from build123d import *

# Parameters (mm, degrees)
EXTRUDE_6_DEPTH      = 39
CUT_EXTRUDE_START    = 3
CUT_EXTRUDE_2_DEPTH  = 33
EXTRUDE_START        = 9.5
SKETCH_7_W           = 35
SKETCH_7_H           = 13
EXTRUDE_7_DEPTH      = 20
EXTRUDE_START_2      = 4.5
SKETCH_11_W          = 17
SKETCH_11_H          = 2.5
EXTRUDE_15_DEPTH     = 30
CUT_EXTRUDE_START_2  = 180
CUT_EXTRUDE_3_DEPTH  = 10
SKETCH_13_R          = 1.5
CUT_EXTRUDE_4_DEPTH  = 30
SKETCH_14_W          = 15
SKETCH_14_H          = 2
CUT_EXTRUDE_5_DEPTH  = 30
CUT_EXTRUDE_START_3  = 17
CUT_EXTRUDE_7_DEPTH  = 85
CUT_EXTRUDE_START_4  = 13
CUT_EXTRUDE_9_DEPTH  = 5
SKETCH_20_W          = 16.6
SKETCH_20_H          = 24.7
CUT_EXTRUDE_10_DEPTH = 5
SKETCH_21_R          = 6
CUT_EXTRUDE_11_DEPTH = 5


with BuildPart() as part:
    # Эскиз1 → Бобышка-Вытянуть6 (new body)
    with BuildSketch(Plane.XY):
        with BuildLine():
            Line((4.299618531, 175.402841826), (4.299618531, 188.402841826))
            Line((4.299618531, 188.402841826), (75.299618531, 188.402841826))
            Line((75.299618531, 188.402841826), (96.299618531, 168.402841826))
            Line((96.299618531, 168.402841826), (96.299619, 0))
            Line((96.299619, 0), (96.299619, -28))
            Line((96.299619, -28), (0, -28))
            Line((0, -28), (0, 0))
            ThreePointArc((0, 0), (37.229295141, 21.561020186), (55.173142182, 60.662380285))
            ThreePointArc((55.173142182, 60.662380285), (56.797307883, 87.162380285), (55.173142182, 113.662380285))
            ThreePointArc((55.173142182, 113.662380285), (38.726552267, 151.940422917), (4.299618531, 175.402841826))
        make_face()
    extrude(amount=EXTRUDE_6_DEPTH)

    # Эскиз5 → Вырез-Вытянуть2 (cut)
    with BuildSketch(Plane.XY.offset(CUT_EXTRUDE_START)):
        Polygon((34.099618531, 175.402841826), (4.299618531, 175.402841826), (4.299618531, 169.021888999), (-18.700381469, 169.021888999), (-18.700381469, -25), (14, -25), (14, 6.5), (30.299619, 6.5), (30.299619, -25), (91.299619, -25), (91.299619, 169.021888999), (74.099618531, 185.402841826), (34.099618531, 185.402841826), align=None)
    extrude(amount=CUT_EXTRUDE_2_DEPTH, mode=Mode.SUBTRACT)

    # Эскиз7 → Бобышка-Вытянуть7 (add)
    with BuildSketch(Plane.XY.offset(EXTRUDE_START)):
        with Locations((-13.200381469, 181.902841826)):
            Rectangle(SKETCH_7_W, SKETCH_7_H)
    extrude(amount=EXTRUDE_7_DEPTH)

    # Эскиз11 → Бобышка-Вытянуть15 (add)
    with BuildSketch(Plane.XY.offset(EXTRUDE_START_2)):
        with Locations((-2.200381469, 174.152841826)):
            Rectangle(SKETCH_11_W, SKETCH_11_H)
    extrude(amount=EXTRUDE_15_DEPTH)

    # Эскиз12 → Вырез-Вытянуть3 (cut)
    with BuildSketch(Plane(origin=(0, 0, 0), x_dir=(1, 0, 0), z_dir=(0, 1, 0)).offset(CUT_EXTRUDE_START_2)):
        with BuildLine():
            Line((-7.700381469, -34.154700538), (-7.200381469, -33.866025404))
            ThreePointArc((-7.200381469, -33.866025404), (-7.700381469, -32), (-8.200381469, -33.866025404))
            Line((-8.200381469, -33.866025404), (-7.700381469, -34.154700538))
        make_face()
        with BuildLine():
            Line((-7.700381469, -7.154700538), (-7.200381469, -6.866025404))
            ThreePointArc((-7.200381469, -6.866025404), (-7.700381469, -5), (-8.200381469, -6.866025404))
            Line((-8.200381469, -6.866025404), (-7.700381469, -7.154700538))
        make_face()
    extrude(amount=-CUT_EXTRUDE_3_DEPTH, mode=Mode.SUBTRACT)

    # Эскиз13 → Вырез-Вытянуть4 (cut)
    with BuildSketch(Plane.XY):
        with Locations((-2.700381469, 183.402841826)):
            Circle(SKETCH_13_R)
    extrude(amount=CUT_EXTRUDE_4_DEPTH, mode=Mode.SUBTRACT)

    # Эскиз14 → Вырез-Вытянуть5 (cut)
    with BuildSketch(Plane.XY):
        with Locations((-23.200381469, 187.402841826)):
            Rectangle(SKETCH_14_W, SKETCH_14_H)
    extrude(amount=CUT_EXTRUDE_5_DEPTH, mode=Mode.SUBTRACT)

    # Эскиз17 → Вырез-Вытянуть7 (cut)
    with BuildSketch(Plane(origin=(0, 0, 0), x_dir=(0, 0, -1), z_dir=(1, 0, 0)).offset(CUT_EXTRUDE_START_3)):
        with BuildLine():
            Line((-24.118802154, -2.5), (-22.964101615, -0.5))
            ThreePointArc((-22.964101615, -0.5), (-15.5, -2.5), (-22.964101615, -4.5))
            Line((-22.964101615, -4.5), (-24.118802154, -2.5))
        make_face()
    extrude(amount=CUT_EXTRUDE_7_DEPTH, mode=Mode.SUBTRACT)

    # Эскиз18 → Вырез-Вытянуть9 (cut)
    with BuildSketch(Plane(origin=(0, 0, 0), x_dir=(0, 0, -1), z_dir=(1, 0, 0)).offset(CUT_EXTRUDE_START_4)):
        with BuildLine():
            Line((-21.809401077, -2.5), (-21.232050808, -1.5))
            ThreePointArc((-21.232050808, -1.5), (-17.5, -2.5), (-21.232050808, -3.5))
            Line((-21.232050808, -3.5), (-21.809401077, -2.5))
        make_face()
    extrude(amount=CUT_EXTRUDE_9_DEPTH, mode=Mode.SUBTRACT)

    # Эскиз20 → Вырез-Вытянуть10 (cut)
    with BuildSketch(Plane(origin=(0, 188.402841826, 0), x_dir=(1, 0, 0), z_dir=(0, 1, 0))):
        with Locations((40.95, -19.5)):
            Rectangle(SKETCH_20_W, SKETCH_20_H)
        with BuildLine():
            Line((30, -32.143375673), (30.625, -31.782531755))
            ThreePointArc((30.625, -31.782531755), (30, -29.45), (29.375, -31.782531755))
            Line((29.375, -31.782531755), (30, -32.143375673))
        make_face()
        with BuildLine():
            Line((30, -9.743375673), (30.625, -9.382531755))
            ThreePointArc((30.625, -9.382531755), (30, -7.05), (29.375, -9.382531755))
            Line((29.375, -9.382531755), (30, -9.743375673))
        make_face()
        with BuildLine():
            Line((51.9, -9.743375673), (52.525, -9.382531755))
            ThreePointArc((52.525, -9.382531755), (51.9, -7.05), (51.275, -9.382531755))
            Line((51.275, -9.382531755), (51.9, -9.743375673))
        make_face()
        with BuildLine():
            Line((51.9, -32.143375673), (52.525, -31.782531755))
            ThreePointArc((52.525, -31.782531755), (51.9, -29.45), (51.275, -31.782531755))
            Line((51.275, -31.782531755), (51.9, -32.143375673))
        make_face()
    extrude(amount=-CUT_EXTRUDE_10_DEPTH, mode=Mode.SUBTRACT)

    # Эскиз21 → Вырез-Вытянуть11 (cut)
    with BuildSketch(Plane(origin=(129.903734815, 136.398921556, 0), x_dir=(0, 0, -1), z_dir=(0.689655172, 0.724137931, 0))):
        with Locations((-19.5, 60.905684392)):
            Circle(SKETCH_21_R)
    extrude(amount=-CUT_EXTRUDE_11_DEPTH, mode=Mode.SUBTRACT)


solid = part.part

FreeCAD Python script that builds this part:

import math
import FreeCAD as App
import Part
import Sketcher
from FreeCAD import Vector
Q = App.Units.Quantity

doc = App.newDocument("Part")
body = doc.addObject("PartDesign::Body", "Body")

sketch1 = body.newObject("Sketcher::SketchObject", "Sketch")
sketch1.AttachmentSupport = (doc.getObject("XY_Plane"), [""])
sketch1.MapMode = "FlatFace"
sketch1.addGeometry([
    Part.LineSegment(Vector(4, 188, 0), Vector(4, 175, 0)),
    Part.ArcOfCircle(Part.Circle(Vector(-19, 105, 0), Vector(0, 0, 1), 75), math.radians(7), math.radians(72)),
    Part.ArcOfCircle(Part.Circle(Vector(-160, 87, 0), Vector(0, 0, 1), 217), math.radians(-7.01), math.radians(7.01)),
    Part.ArcOfCircle(Part.Circle(Vector(-15, 69, 0), Vector(0, 0, 1), 71), math.radians(-78), math.radians(-7)),
    Part.LineSegment(Vector(0, 0, 0), Vector(0, -28, 0)),
    Part.LineSegment(Vector(0, -28, 0), Vector(96, -28, 0)),
    Part.LineSegment(Vector(96, -28, 0), Vector(96, 0, 0)),
    Part.LineSegment(Vector(96, 0, 0), Vector(96, 168, 0)),
    Part.LineSegment(Vector(96, 168, 0), Vector(75, 188, 0)),
    Part.LineSegment(Vector(75, 188, 0), Vector(4, 188, 0)),
], False)
sketch1.addConstraint([
    Sketcher.Constraint("Coincident", 0, 2, 1, 2),
    Sketcher.Constraint("Tangent", 1, 1, 2, 2),
    Sketcher.Constraint("Tangent", 2, 1, 3, 2),
    Sketcher.Constraint("Coincident", 3, 1, 4, 1),
    Sketcher.Constraint("Coincident", 4, 2, 5, 1),
    Sketcher.Constraint("Coincident", 5, 2, 6, 1),
    Sketcher.Constraint("Coincident", 6, 2, 7, 1),
    Sketcher.Constraint("Coincident", 7, 2, 8, 1),
    Sketcher.Constraint("Coincident", 8, 2, 9, 1),
    Sketcher.Constraint("Coincident", 9, 2, 0, 1),
    Sketcher.Constraint("Vertical", 0),
    Sketcher.Constraint("Vertical", 4),
    Sketcher.Constraint("Horizontal", 5),
    Sketcher.Constraint("Vertical", 6),
    Sketcher.Constraint("Vertical", 7),
    Sketcher.Constraint("Horizontal", 9),
    Sketcher.Constraint("Coincident", 3, 1, -1, 1),
    Sketcher.Constraint("PointOnObject", 6, 2, -1),
    Sketcher.Constraint("Vertical", 1, 1, 2, 1),
    Sketcher.Constraint("Radius", 2, Q("217 mm")),
    Sketcher.Constraint("Radius", 3, Q("71 mm")),
    Sketcher.Constraint("Radius", 1, Q("74.5 mm")),
    Sketcher.Constraint("DistanceX", 9, 2, 9, 1, Q("71 mm")),
    Sketcher.Constraint("DistanceY", 0, 2, 0, 1, Q("13 mm")),
    Sketcher.Constraint("DistanceY", 4, 2, 4, 1, Q("28 mm")),
    Sketcher.Constraint("Distance", 8, Q("29 mm")),
    Sketcher.Constraint("DistanceY", 2, 1, 1, 1, Q("53 mm")),
    Sketcher.Constraint("DistanceX", 0, 2, 7, 2, Q("92 mm")),
    Sketcher.Constraint("DistanceX", 5, 1, 5, 2, Q("96.299619 mm")),
    Sketcher.Constraint("DistanceY", 7, 1, 7, 2, Q("168.402842 mm")),
])
pad1 = body.newObject("PartDesign::Pad", "Pad")
pad1.Profile = sketch1
pad1.Length = 39

sketch2 = body.newObject("Sketcher::SketchObject", "Sketch001")
sketch2.AttachmentSupport = (doc.getObject("XY_Plane"), [""])
sketch2.MapMode = "FlatFace"
sketch2.AttachmentOffset = App.Placement(Vector(0, 0, 3), App.Rotation())
sketch2.addGeometry([
    Part.LineSegment(Vector(34, 175, 0), Vector(4, 175, 0)),
    Part.LineSegment(Vector(4, 175, 0), Vector(4, 169, 0)),
    Part.LineSegment(Vector(4, 169, 0), Vector(-19, 169, 0)),
    Part.LineSegment(Vector(-19, 169, 0), Vector(-19, -25, 0)),
    Part.LineSegment(Vector(-19, -25, 0), Vector(14, -25, 0)),
    Part.LineSegment(Vector(14, -25, 0), Vector(14, 6, 0)),
    Part.LineSegment(Vector(14, 6, 0), Vector(30, 6, 0)),
    Part.LineSegment(Vector(30, 6, 0), Vector(30, -25, 0)),
    Part.LineSegment(Vector(30, -25, 0), Vector(91, -25, 0)),
    Part.LineSegment(Vector(91, -25, 0), Vector(91, 169, 0)),
    Part.LineSegment(Vector(91, 169, 0), Vector(74, 185, 0)),
    Part.LineSegment(Vector(74, 185, 0), Vector(34, 185, 0)),
    Part.LineSegment(Vector(34, 185, 0), Vector(34, 175, 0)),
], False)
sketch2.addConstraint([
    Sketcher.Constraint("Coincident", 0, 2, 1, 1),
    Sketcher.Constraint("Coincident", 1, 2, 2, 1),
    Sketcher.Constraint("Coincident", 2, 2, 3, 1),
    Sketcher.Constraint("Coincident", 3, 2, 4, 1),
    Sketcher.Constraint("Coincident", 4, 2, 5, 1),
    Sketcher.Constraint("Coincident", 5, 2, 6, 1),
    Sketcher.Constraint("Coincident", 6, 2, 7, 1),
    Sketcher.Constraint("Coincident", 7, 2, 8, 1),
    Sketcher.Constraint("Coincident", 8, 2, 9, 1),
    Sketcher.Constraint("Coincident", 9, 2, 10, 1),
    Sketcher.Constraint("Coincident", 10, 2, 11, 1),
    Sketcher.Constraint("Coincident", 11, 2, 12, 1),
    Sketcher.Constraint("Coincident", 12, 2, 0, 1),
    Sketcher.Constraint("Horizontal", 0),
    Sketcher.Constraint("Vertical", 1),
    Sketcher.Constraint("Horizontal", 2),
    Sketcher.Constraint("Vertical", 3),
    Sketcher.Constraint("Horizontal", 4),
    Sketcher.Constraint("Vertical", 5),
    Sketcher.Constraint("Horizontal", 6),
    Sketcher.Constraint("Vertical", 7),
    Sketcher.Constraint("Horizontal", 8),
    Sketcher.Constraint("Vertical", 9),
    Sketcher.Constraint("Horizontal", 11),
    Sketcher.Constraint("Vertical", 12),
    Sketcher.Constraint("Horizontal", 4, 2, 7, 2),
    Sketcher.Constraint("Horizontal", 2, 2, 9, 2),
    Sketcher.Constraint("DistanceX", 2, 2, 2, 1, Q("23 mm")),
    Sketcher.Constraint("DistanceX", 8, 1, 8, 2, Q("61 mm")),
    Sketcher.Constraint("DistanceX", 11, 2, 11, 1, Q("40 mm")),
    Sketcher.Constraint("DistanceY", 12, 2, 12, 1, Q("10 mm")),
    Sketcher.Constraint("DistanceX", 0, 2, 0, 1, Q("29.8 mm")),
    Sketcher.Constraint("DistanceY", 5, 1, 5, 2, Q("31.5 mm")),
    Sketcher.Constraint("DistanceY", 3, 2, -1, 1, Q("25 mm")),
    Sketcher.Constraint("DistanceX", -1, 1, 4, 2, Q("14 mm")),
    Sketcher.Constraint("DistanceX", 3, 2, 6, 2, Q("49 mm")),
    Sketcher.Constraint("DistanceX", 4, 1, 4, 2, Q("32.700381 mm")),
    Sketcher.Constraint("DistanceY", 3, 2, 3, 1, Q("194.021889 mm")),
    Sketcher.Constraint("Distance", 10, Q("23.752382 mm")),
])
pocket1 = body.newObject("PartDesign::Pocket", "Pocket")
pocket1.Profile = sketch2
pocket1.Length = 33
pocket1.Reversed = True

sketch3 = body.newObject("Sketcher::SketchObject", "Sketch002")
sketch3.AttachmentSupport = (doc.getObject("XY_Plane"), [""])
sketch3.MapMode = "FlatFace"
sketch3.AttachmentOffset = App.Placement(Vector(0, 0, 9.5), App.Rotation())
sketch3.addGeometry([
    Part.LineSegment(Vector(-31, 188, 0), Vector(-31, 175, 0)),
    Part.LineSegment(Vector(-31, 175, 0), Vector(4, 175, 0)),
    Part.LineSegment(Vector(4, 175, 0), Vector(4, 188, 0)),
    Part.LineSegment(Vector(4, 188, 0), Vector(-31, 188, 0)),
], False)
sketch3.addConstraint([
    Sketcher.Constraint("Coincident", 0, 2, 1, 1),
    Sketcher.Constraint("Coincident", 1, 2, 2, 1),
    Sketcher.Constraint("Coincident", 2, 2, 3, 1),
    Sketcher.Constraint("Coincident", 3, 2, 0, 1),
    Sketcher.Constraint("Vertical", 0),
    Sketcher.Constraint("Horizontal", 1),
    Sketcher.Constraint("Vertical", 2),
    Sketcher.Constraint("Horizontal", 3),
    Sketcher.Constraint("DistanceX", 1, 1, 1, 2, Q("35 mm")),
    Sketcher.Constraint("DistanceY", 0, 2, 0, 1, Q("13 mm")),
    Sketcher.Constraint("DistanceX", 0, 2, -1, 1, Q("30.700381 mm")),
    Sketcher.Constraint("DistanceY", -1, 1, 0, 2, Q("175.402842 mm")),
])
pad2 = body.newObject("PartDesign::Pad", "Pad001")
pad2.Profile = sketch3
pad2.Length = 20

sketch4 = body.newObject("Sketcher::SketchObject", "Sketch003")
sketch4.AttachmentSupport = (doc.getObject("XY_Plane"), [""])
sketch4.MapMode = "FlatFace"
sketch4.AttachmentOffset = App.Placement(Vector(0, 0, 4.5), App.Rotation())
sketch4.addGeometry([
    Part.LineSegment(Vector(-10.7, 175.4, 0), Vector(-10.7, 172.9, 0)),
    Part.LineSegment(Vector(-10.7, 172.9, 0), Vector(6.3, 172.9, 0)),
    Part.LineSegment(Vector(6.3, 172.9, 0), Vector(6.3, 175.4, 0)),
    Part.LineSegment(Vector(6.3, 175.4, 0), Vector(-10.7, 175.4, 0)),
], False)
sketch4.addConstraint([
    Sketcher.Constraint("Coincident", 0, 2, 1, 1),
    Sketcher.Constraint("Coincident", 1, 2, 2, 1),
    Sketcher.Constraint("Coincident", 2, 2, 3, 1),
    Sketcher.Constraint("Coincident", 3, 2, 0, 1),
    Sketcher.Constraint("Vertical", 0),
    Sketcher.Constraint("Horizontal", 1),
    Sketcher.Constraint("Vertical", 2),
    Sketcher.Constraint("Horizontal", 3),
    Sketcher.Constraint("DistanceX", 1, 1, 1, 2, Q("17 mm")),
    Sketcher.Constraint("DistanceY", 0, 2, 0, 1, Q("2.5 mm")),
    Sketcher.Constraint("DistanceX", 0, 2, -1, 1, Q("10.700381 mm")),
    Sketcher.Constraint("DistanceY", -1, 1, 0, 2, Q("172.902842 mm")),
])
pad3 = body.newObject("PartDesign::Pad", "Pad002")
pad3.Profile = sketch4
pad3.Length = 30

sketch5 = body.newObject("Sketcher::SketchObject", "Sketch004")
sketch5.AttachmentSupport = (doc.getObject("XZ_Plane"), [""])
sketch5.MapMode = "FlatFace"
sketch5.AttachmentOffset = App.Placement(Vector(0, 0, -180), App.Rotation())
sketch5.addGeometry([
    Part.LineSegment(Vector(-7.7, 34.2, 0), Vector(-7.2, 33.9, 0)),
    Part.ArcOfCircle(Part.Circle(Vector(-7.7, 33, 0), Vector(0, 0, 1), 1), math.radians(120), math.radians(420)),
    Part.LineSegment(Vector(-8.2, 33.9, 0), Vector(-7.7, 34.2, 0)),
    Part.LineSegment(Vector(-7.7, 7.2, 0), Vector(-7.2, 6.9, 0)),
    Part.ArcOfCircle(Part.Circle(Vector(-7.7, 6, 0), Vector(0, 0, 1), 1), math.radians(120), math.radians(420)),
    Part.LineSegment(Vector(-8.2, 6.9, 0), Vector(-7.7, 7.2, 0)),
], False)
sketch5.addConstraint([
    Sketcher.Constraint("Tangent", 0, 2, 1, 2),
    Sketcher.Constraint("Tangent", 1, 1, 2, 1),
    Sketcher.Constraint("Coincident", 2, 2, 0, 1),
    Sketcher.Constraint("Tangent", 3, 2, 4, 2),
    Sketcher.Constraint("Tangent", 4, 1, 5, 1),
    Sketcher.Constraint("Coincident", 5, 2, 3, 1),
    Sketcher.Constraint("Equal", 1, 4),
    Sketcher.Constraint("Parallel", 0, 3),
    Sketcher.Constraint("Parallel", 2, 5),
    Sketcher.Constraint("Horizontal", 0, 2, 1, 1),
    Sketcher.Constraint("Vertical", 1, 3, 4, 3),
    Sketcher.Constraint("Radius", 1, Q("1 mm")),
    Sketcher.Constraint("Angle", 0, Q("-30 deg")),
    Sketcher.Constraint("DistanceY", -1, 1, 1, 3, Q("33 mm")),
    Sketcher.Constraint("DistanceY", -1, 1, 4, 3, Q("6 mm")),
    Sketcher.Constraint("DistanceX", 1, 3, -1, 1, Q("7.700381 mm")),
])
pocket2 = body.newObject("PartDesign::Pocket", "Pocket001")
pocket2.Profile = sketch5
pocket2.Length = 10
pocket2.Reversed = True

sketch6 = body.newObject("Sketcher::SketchObject", "Sketch005")
sketch6.AttachmentSupport = (doc.getObject("XY_Plane"), [""])
sketch6.MapMode = "FlatFace"
sketch6.addGeometry(Part.Circle(Vector(-2.7, 183.4, 0), Vector(0, 0, 1), 1.5), False)
sketch6.addConstraint([
    Sketcher.Constraint("Diameter", 0, Q("3 mm")),
    Sketcher.Constraint("DistanceX", 0, 3, -1, 1, Q("2.700381 mm")),
    Sketcher.Constraint("DistanceY", -1, 1, 0, 3, Q("183.402842 mm")),
])
pocket3 = body.newObject("PartDesign::Pocket", "Pocket002")
pocket3.Profile = sketch6
pocket3.Length = 30
pocket3.Reversed = True

sketch7 = body.newObject("Sketcher::SketchObject", "Sketch006")
sketch7.AttachmentSupport = (doc.getObject("XY_Plane"), [""])
sketch7.MapMode = "FlatFace"
sketch7.addGeometry([
    Part.LineSegment(Vector(-30.7, 188.4, 0), Vector(-30.7, 186.4, 0)),
    Part.LineSegment(Vector(-30.7, 186.4, 0), Vector(-15.7, 186.4, 0)),
    Part.LineSegment(Vector(-15.7, 186.4, 0), Vector(-15.7, 188.4, 0)),
    Part.LineSegment(Vector(-15.7, 188.4, 0), Vector(-30.7, 188.4, 0)),
], False)
sketch7.addConstraint([
    Sketcher.Constraint("Coincident", 0, 2, 1, 1),
    Sketcher.Constraint("Coincident", 1, 2, 2, 1),
    Sketcher.Constraint("Coincident", 2, 2, 3, 1),
    Sketcher.Constraint("Coincident", 3, 2, 0, 1),
    Sketcher.Constraint("Vertical", 0),
    Sketcher.Constraint("Horizontal", 1),
    Sketcher.Constraint("Vertical", 2),
    Sketcher.Constraint("Horizontal", 3),
    Sketcher.Constraint("DistanceX", 1, 1, 1, 2, Q("15 mm")),
    Sketcher.Constraint("DistanceY", 0, 2, 0, 1, Q("2 mm")),
    Sketcher.Constraint("DistanceX", 0, 2, -1, 1, Q("30.700381 mm")),
    Sketcher.Constraint("DistanceY", -1, 1, 0, 2, Q("186.402842 mm")),
])
pocket4 = body.newObject("PartDesign::Pocket", "Pocket003")
pocket4.Profile = sketch7
pocket4.Length = 30
pocket4.Reversed = True

sketch8 = body.newObject("Sketcher::SketchObject", "Sketch007")
sketch8.AttachmentSupport = (doc.getObject("YZ_Plane"), [""])
sketch8.MapMode = "FlatFace"
sketch8.AttachmentOffset = App.Placement(Vector(0, 0, 17), App.Rotation())
sketch8.addGeometry([
    Part.LineSegment(Vector(-0.5, 23, 0), Vector(-2.5, 24.1, 0)),
    Part.LineSegment(Vector(-2.5, 24.1, 0), Vector(-4.5, 23, 0)),
    Part.ArcOfCircle(Part.Circle(Vector(-2.5, 19.5, 0), Vector(0, 0, 1), 4), math.radians(120), math.radians(420)),
], False)
sketch8.addConstraint([
    Sketcher.Constraint("Coincident", 0, 2, 1, 1),
    Sketcher.Constraint("Tangent", 1, 2, 2, 1),
    Sketcher.Constraint("Tangent", 2, 2, 0, 1),
    Sketcher.Constraint("Horizontal", 1, 2, 2, 2),
    Sketcher.Constraint("Radius", 2, Q("4 mm")),
    Sketcher.Constraint("Angle", 0, Q("150 deg")),
    Sketcher.Constraint("DistanceX", 2, 3, -1, 1, Q("2.5 mm")),
    Sketcher.Constraint("DistanceY", -1, 1, 2, 3, Q("19.5 mm")),
])
pocket5 = body.newObject("PartDesign::Pocket", "Pocket004")
pocket5.Profile = sketch8
pocket5.Length = 85
pocket5.Reversed = True

sketch9 = body.newObject("Sketcher::SketchObject", "Sketch008")
sketch9.AttachmentSupport = (doc.getObject("YZ_Plane"), [""])
sketch9.MapMode = "FlatFace"
sketch9.AttachmentOffset = App.Placement(Vector(0, 0, 13), App.Rotation())
sketch9.addGeometry([
    Part.LineSegment(Vector(-1.5, 21.2, 0), Vector(-2.5, 21.8, 0)),
    Part.LineSegment(Vector(-2.5, 21.8, 0), Vector(-3.5, 21.2, 0)),
    Part.ArcOfCircle(Part.Circle(Vector(-2.5, 19.5, 0), Vector(0, 0, 1), 2), math.radians(120), math.radians(420)),
], False)
sketch9.addConstraint([
    Sketcher.Constraint("Coincident", 0, 2, 1, 1),
    Sketcher.Constraint("Tangent", 1, 2, 2, 1),
    Sketcher.Constraint("Tangent", 2, 2, 0, 1),
    Sketcher.Constraint("Horizontal", 1, 2, 2, 2),
    Sketcher.Constraint("Radius", 2, Q("2 mm")),
    Sketcher.Constraint("Angle", 0, Q("150 deg")),
    Sketcher.Constraint("DistanceX", 2, 3, -1, 1, Q("2.5 mm")),
    Sketcher.Constraint("DistanceY", -1, 1, 2, 3, Q("19.5 mm")),
])
pocket6 = body.newObject("PartDesign::Pocket", "Pocket005")
pocket6.Profile = sketch9
pocket6.Length = 5
pocket6.Reversed = True

sketch10 = body.newObject("Sketcher::SketchObject", "Sketch009")
sketch10.AttachmentSupport = (doc.getObject("XZ_Plane"), [""])
sketch10.MapMode = "FlatFace"
sketch10.AttachmentOffset = App.Placement(Vector(0, 0, -188.402842), App.Rotation())
sketch10.addGeometry([
    Part.LineSegment(Vector(32.6, 7.2, 0), Vector(32.6, 31.9, 0)),
    Part.LineSegment(Vector(32.6, 31.9, 0), Vector(49.2, 31.9, 0)),
    Part.LineSegment(Vector(49.2, 31.9, 0), Vector(49.2, 7.2, 0)),
    Part.LineSegment(Vector(49.2, 7.2, 0), Vector(32.6, 7.2, 0)),
    Part.LineSegment(Vector(30, 32.1, 0), Vector(30.6, 31.8, 0)),
    Part.ArcOfCircle(Part.Circle(Vector(30, 30.7, 0), Vector(0, 0, 1), 1.2), math.radians(120), math.radians(420)),
    Part.LineSegment(Vector(29.4, 31.8, 0), Vector(30, 32.1, 0)),
    Part.LineSegment(Vector(30, 9.7, 0), Vector(30.6, 9.4, 0)),
    Part.ArcOfCircle(Part.Circle(Vector(30, 8.3, 0), Vector(0, 0, 1), 1.2), math.radians(120), math.radians(420)),
    Part.LineSegment(Vector(29.4, 9.4, 0), Vector(30, 9.7, 0)),
    Part.LineSegment(Vector(51.9, 9.7, 0), Vector(52.5, 9.4, 0)),
    Part.ArcOfCircle(Part.Circle(Vector(51.9, 8.3, 0), Vector(0, 0, 1), 1.2), math.radians(120), math.radians(420)),
    Part.LineSegment(Vector(51.3, 9.4, 0), Vector(51.9, 9.7, 0)),
    Part.LineSegment(Vector(51.9, 32.1, 0), Vector(52.5, 31.8, 0)),
    Part.ArcOfCircle(Part.Circle(Vector(51.9, 30.7, 0), Vector(0, 0, 1), 1.2), math.radians(120), math.radians(420)),
    Part.LineSegment(Vector(51.3, 31.8, 0), Vector(51.9, 32.1, 0)),
], False)
sketch10.addConstraint([
    Sketcher.Constraint("Coincident", 0, 2, 1, 1),
    Sketcher.Constraint("Coincident", 1, 2, 2, 1),
    Sketcher.Constraint("Coincident", 2, 2, 3, 1),
    Sketcher.Constraint("Coincident", 3, 2, 0, 1),
    Sketcher.Constraint("Tangent", 4, 2, 5, 2),
    Sketcher.Constraint("Tangent", 5, 1, 6, 1),
    Sketcher.Constraint("Coincident", 6, 2, 4, 1),
    Sketcher.Constraint("Tangent", 7, 2, 8, 2),
    Sketcher.Constraint("Tangent", 8, 1, 9, 1),
    Sketcher.Constraint("Coincident", 9, 2, 7, 1),
    Sketcher.Constraint("Tangent", 10, 2, 11, 2),
    Sketcher.Constraint("Tangent", 11, 1, 12, 1),
    Sketcher.Constraint("Coincident", 12, 2, 10, 1),
    Sketcher.Constraint("Tangent", 13, 2, 14, 2),
    Sketcher.Constraint("Tangent", 14, 1, 15, 1),
    Sketcher.Constraint("Coincident", 15, 2, 13, 1),
    Sketcher.Constraint("Vertical", 0),
    Sketcher.Constraint("Horizontal", 1),
    Sketcher.Constraint("Vertical", 2),
    Sketcher.Constraint("Horizontal", 3),
    Sketcher.Constraint("Equal", 5, 8),
    Sketcher.Constraint("Equal", 8, 11),
    Sketcher.Constraint("Equal", 11, 14),
    Sketcher.Constraint("Parallel", 4, 7),
    Sketcher.Constraint("Parallel", 6, 9),
    Sketcher.Constraint("Parallel", 7, 10),
    Sketcher.Constraint("Parallel", 9, 12),
    Sketcher.Constraint("Parallel", 10, 13),
    Sketcher.Constraint("Parallel", 12, 15),
    Sketcher.Constraint("Horizontal", 8, 3, 11, 3),
    Sketcher.Constraint("Horizontal", 5, 3, 14, 3),
    Sketcher.Constraint("Horizontal", 4, 2, 5, 1),
    Sketcher.Constraint("Vertical", 5, 3, 8, 3),
    Sketcher.Constraint("Vertical", 11, 3, 14, 3),
    Sketcher.Constraint("Angle", 4, Q("-30 deg")),
    Sketcher.Constraint("Radius", 5, Q("1.25 mm")),
    Sketcher.Constraint("DistanceX", 1, 1, 1, 2, Q("16.6 mm")),
    Sketcher.Constraint("DistanceY", 0, 1, 0, 2, Q("24.7 mm")),
    Sketcher.Constraint("DistanceX", -1, 1, 5, 3, Q("30 mm")),
    Sketcher.Constraint("DistanceY", -1, 1, 5, 3, Q("30.7 mm")),
    Sketcher.Constraint("DistanceY", -1, 1, 8, 3, Q("8.3 mm")),
    Sketcher.Constraint("DistanceX", -1, 1, 11, 3, Q("51.9 mm")),
    Sketcher.Constraint("DistanceX", -1, 1, 0, 2, Q("32.65 mm")),
    Sketcher.Constraint("DistanceY", -1, 1, 0, 2, Q("31.85 mm")),
])
pocket7 = body.newObject("PartDesign::Pocket", "Pocket006")
pocket7.Profile = sketch10
pocket7.Length = 5
pocket7.Reversed = True

sketch11 = body.newObject("Sketcher::SketchObject", "Sketch010")
sketch11.Placement = App.Placement(Vector(129.903735, 136.398922, 0), App.Rotation(Vector(0, 0, -1), Vector(-0.724137931, 0.689655172, 0), Vector(0.689655172, 0.724137931, 0), "ZXY"))
sketch11.addGeometry(Part.Circle(Vector(-20, 61, 0), Vector(0, 0, 1), 6), False)
sketch11.addConstraint([
    Sketcher.Constraint("Diameter", 0, Q("12 mm")),
    Sketcher.Constraint("DistanceX", 0, 3, -1, 1, Q("19.5 mm")),
    Sketcher.Constraint("DistanceY", -1, 1, 0, 3, Q("60.905684 mm")),
])
pocket8 = body.newObject("PartDesign::Pocket", "Pocket007")
pocket8.Profile = sketch11
pocket8.Length = 5

doc.recompute()
